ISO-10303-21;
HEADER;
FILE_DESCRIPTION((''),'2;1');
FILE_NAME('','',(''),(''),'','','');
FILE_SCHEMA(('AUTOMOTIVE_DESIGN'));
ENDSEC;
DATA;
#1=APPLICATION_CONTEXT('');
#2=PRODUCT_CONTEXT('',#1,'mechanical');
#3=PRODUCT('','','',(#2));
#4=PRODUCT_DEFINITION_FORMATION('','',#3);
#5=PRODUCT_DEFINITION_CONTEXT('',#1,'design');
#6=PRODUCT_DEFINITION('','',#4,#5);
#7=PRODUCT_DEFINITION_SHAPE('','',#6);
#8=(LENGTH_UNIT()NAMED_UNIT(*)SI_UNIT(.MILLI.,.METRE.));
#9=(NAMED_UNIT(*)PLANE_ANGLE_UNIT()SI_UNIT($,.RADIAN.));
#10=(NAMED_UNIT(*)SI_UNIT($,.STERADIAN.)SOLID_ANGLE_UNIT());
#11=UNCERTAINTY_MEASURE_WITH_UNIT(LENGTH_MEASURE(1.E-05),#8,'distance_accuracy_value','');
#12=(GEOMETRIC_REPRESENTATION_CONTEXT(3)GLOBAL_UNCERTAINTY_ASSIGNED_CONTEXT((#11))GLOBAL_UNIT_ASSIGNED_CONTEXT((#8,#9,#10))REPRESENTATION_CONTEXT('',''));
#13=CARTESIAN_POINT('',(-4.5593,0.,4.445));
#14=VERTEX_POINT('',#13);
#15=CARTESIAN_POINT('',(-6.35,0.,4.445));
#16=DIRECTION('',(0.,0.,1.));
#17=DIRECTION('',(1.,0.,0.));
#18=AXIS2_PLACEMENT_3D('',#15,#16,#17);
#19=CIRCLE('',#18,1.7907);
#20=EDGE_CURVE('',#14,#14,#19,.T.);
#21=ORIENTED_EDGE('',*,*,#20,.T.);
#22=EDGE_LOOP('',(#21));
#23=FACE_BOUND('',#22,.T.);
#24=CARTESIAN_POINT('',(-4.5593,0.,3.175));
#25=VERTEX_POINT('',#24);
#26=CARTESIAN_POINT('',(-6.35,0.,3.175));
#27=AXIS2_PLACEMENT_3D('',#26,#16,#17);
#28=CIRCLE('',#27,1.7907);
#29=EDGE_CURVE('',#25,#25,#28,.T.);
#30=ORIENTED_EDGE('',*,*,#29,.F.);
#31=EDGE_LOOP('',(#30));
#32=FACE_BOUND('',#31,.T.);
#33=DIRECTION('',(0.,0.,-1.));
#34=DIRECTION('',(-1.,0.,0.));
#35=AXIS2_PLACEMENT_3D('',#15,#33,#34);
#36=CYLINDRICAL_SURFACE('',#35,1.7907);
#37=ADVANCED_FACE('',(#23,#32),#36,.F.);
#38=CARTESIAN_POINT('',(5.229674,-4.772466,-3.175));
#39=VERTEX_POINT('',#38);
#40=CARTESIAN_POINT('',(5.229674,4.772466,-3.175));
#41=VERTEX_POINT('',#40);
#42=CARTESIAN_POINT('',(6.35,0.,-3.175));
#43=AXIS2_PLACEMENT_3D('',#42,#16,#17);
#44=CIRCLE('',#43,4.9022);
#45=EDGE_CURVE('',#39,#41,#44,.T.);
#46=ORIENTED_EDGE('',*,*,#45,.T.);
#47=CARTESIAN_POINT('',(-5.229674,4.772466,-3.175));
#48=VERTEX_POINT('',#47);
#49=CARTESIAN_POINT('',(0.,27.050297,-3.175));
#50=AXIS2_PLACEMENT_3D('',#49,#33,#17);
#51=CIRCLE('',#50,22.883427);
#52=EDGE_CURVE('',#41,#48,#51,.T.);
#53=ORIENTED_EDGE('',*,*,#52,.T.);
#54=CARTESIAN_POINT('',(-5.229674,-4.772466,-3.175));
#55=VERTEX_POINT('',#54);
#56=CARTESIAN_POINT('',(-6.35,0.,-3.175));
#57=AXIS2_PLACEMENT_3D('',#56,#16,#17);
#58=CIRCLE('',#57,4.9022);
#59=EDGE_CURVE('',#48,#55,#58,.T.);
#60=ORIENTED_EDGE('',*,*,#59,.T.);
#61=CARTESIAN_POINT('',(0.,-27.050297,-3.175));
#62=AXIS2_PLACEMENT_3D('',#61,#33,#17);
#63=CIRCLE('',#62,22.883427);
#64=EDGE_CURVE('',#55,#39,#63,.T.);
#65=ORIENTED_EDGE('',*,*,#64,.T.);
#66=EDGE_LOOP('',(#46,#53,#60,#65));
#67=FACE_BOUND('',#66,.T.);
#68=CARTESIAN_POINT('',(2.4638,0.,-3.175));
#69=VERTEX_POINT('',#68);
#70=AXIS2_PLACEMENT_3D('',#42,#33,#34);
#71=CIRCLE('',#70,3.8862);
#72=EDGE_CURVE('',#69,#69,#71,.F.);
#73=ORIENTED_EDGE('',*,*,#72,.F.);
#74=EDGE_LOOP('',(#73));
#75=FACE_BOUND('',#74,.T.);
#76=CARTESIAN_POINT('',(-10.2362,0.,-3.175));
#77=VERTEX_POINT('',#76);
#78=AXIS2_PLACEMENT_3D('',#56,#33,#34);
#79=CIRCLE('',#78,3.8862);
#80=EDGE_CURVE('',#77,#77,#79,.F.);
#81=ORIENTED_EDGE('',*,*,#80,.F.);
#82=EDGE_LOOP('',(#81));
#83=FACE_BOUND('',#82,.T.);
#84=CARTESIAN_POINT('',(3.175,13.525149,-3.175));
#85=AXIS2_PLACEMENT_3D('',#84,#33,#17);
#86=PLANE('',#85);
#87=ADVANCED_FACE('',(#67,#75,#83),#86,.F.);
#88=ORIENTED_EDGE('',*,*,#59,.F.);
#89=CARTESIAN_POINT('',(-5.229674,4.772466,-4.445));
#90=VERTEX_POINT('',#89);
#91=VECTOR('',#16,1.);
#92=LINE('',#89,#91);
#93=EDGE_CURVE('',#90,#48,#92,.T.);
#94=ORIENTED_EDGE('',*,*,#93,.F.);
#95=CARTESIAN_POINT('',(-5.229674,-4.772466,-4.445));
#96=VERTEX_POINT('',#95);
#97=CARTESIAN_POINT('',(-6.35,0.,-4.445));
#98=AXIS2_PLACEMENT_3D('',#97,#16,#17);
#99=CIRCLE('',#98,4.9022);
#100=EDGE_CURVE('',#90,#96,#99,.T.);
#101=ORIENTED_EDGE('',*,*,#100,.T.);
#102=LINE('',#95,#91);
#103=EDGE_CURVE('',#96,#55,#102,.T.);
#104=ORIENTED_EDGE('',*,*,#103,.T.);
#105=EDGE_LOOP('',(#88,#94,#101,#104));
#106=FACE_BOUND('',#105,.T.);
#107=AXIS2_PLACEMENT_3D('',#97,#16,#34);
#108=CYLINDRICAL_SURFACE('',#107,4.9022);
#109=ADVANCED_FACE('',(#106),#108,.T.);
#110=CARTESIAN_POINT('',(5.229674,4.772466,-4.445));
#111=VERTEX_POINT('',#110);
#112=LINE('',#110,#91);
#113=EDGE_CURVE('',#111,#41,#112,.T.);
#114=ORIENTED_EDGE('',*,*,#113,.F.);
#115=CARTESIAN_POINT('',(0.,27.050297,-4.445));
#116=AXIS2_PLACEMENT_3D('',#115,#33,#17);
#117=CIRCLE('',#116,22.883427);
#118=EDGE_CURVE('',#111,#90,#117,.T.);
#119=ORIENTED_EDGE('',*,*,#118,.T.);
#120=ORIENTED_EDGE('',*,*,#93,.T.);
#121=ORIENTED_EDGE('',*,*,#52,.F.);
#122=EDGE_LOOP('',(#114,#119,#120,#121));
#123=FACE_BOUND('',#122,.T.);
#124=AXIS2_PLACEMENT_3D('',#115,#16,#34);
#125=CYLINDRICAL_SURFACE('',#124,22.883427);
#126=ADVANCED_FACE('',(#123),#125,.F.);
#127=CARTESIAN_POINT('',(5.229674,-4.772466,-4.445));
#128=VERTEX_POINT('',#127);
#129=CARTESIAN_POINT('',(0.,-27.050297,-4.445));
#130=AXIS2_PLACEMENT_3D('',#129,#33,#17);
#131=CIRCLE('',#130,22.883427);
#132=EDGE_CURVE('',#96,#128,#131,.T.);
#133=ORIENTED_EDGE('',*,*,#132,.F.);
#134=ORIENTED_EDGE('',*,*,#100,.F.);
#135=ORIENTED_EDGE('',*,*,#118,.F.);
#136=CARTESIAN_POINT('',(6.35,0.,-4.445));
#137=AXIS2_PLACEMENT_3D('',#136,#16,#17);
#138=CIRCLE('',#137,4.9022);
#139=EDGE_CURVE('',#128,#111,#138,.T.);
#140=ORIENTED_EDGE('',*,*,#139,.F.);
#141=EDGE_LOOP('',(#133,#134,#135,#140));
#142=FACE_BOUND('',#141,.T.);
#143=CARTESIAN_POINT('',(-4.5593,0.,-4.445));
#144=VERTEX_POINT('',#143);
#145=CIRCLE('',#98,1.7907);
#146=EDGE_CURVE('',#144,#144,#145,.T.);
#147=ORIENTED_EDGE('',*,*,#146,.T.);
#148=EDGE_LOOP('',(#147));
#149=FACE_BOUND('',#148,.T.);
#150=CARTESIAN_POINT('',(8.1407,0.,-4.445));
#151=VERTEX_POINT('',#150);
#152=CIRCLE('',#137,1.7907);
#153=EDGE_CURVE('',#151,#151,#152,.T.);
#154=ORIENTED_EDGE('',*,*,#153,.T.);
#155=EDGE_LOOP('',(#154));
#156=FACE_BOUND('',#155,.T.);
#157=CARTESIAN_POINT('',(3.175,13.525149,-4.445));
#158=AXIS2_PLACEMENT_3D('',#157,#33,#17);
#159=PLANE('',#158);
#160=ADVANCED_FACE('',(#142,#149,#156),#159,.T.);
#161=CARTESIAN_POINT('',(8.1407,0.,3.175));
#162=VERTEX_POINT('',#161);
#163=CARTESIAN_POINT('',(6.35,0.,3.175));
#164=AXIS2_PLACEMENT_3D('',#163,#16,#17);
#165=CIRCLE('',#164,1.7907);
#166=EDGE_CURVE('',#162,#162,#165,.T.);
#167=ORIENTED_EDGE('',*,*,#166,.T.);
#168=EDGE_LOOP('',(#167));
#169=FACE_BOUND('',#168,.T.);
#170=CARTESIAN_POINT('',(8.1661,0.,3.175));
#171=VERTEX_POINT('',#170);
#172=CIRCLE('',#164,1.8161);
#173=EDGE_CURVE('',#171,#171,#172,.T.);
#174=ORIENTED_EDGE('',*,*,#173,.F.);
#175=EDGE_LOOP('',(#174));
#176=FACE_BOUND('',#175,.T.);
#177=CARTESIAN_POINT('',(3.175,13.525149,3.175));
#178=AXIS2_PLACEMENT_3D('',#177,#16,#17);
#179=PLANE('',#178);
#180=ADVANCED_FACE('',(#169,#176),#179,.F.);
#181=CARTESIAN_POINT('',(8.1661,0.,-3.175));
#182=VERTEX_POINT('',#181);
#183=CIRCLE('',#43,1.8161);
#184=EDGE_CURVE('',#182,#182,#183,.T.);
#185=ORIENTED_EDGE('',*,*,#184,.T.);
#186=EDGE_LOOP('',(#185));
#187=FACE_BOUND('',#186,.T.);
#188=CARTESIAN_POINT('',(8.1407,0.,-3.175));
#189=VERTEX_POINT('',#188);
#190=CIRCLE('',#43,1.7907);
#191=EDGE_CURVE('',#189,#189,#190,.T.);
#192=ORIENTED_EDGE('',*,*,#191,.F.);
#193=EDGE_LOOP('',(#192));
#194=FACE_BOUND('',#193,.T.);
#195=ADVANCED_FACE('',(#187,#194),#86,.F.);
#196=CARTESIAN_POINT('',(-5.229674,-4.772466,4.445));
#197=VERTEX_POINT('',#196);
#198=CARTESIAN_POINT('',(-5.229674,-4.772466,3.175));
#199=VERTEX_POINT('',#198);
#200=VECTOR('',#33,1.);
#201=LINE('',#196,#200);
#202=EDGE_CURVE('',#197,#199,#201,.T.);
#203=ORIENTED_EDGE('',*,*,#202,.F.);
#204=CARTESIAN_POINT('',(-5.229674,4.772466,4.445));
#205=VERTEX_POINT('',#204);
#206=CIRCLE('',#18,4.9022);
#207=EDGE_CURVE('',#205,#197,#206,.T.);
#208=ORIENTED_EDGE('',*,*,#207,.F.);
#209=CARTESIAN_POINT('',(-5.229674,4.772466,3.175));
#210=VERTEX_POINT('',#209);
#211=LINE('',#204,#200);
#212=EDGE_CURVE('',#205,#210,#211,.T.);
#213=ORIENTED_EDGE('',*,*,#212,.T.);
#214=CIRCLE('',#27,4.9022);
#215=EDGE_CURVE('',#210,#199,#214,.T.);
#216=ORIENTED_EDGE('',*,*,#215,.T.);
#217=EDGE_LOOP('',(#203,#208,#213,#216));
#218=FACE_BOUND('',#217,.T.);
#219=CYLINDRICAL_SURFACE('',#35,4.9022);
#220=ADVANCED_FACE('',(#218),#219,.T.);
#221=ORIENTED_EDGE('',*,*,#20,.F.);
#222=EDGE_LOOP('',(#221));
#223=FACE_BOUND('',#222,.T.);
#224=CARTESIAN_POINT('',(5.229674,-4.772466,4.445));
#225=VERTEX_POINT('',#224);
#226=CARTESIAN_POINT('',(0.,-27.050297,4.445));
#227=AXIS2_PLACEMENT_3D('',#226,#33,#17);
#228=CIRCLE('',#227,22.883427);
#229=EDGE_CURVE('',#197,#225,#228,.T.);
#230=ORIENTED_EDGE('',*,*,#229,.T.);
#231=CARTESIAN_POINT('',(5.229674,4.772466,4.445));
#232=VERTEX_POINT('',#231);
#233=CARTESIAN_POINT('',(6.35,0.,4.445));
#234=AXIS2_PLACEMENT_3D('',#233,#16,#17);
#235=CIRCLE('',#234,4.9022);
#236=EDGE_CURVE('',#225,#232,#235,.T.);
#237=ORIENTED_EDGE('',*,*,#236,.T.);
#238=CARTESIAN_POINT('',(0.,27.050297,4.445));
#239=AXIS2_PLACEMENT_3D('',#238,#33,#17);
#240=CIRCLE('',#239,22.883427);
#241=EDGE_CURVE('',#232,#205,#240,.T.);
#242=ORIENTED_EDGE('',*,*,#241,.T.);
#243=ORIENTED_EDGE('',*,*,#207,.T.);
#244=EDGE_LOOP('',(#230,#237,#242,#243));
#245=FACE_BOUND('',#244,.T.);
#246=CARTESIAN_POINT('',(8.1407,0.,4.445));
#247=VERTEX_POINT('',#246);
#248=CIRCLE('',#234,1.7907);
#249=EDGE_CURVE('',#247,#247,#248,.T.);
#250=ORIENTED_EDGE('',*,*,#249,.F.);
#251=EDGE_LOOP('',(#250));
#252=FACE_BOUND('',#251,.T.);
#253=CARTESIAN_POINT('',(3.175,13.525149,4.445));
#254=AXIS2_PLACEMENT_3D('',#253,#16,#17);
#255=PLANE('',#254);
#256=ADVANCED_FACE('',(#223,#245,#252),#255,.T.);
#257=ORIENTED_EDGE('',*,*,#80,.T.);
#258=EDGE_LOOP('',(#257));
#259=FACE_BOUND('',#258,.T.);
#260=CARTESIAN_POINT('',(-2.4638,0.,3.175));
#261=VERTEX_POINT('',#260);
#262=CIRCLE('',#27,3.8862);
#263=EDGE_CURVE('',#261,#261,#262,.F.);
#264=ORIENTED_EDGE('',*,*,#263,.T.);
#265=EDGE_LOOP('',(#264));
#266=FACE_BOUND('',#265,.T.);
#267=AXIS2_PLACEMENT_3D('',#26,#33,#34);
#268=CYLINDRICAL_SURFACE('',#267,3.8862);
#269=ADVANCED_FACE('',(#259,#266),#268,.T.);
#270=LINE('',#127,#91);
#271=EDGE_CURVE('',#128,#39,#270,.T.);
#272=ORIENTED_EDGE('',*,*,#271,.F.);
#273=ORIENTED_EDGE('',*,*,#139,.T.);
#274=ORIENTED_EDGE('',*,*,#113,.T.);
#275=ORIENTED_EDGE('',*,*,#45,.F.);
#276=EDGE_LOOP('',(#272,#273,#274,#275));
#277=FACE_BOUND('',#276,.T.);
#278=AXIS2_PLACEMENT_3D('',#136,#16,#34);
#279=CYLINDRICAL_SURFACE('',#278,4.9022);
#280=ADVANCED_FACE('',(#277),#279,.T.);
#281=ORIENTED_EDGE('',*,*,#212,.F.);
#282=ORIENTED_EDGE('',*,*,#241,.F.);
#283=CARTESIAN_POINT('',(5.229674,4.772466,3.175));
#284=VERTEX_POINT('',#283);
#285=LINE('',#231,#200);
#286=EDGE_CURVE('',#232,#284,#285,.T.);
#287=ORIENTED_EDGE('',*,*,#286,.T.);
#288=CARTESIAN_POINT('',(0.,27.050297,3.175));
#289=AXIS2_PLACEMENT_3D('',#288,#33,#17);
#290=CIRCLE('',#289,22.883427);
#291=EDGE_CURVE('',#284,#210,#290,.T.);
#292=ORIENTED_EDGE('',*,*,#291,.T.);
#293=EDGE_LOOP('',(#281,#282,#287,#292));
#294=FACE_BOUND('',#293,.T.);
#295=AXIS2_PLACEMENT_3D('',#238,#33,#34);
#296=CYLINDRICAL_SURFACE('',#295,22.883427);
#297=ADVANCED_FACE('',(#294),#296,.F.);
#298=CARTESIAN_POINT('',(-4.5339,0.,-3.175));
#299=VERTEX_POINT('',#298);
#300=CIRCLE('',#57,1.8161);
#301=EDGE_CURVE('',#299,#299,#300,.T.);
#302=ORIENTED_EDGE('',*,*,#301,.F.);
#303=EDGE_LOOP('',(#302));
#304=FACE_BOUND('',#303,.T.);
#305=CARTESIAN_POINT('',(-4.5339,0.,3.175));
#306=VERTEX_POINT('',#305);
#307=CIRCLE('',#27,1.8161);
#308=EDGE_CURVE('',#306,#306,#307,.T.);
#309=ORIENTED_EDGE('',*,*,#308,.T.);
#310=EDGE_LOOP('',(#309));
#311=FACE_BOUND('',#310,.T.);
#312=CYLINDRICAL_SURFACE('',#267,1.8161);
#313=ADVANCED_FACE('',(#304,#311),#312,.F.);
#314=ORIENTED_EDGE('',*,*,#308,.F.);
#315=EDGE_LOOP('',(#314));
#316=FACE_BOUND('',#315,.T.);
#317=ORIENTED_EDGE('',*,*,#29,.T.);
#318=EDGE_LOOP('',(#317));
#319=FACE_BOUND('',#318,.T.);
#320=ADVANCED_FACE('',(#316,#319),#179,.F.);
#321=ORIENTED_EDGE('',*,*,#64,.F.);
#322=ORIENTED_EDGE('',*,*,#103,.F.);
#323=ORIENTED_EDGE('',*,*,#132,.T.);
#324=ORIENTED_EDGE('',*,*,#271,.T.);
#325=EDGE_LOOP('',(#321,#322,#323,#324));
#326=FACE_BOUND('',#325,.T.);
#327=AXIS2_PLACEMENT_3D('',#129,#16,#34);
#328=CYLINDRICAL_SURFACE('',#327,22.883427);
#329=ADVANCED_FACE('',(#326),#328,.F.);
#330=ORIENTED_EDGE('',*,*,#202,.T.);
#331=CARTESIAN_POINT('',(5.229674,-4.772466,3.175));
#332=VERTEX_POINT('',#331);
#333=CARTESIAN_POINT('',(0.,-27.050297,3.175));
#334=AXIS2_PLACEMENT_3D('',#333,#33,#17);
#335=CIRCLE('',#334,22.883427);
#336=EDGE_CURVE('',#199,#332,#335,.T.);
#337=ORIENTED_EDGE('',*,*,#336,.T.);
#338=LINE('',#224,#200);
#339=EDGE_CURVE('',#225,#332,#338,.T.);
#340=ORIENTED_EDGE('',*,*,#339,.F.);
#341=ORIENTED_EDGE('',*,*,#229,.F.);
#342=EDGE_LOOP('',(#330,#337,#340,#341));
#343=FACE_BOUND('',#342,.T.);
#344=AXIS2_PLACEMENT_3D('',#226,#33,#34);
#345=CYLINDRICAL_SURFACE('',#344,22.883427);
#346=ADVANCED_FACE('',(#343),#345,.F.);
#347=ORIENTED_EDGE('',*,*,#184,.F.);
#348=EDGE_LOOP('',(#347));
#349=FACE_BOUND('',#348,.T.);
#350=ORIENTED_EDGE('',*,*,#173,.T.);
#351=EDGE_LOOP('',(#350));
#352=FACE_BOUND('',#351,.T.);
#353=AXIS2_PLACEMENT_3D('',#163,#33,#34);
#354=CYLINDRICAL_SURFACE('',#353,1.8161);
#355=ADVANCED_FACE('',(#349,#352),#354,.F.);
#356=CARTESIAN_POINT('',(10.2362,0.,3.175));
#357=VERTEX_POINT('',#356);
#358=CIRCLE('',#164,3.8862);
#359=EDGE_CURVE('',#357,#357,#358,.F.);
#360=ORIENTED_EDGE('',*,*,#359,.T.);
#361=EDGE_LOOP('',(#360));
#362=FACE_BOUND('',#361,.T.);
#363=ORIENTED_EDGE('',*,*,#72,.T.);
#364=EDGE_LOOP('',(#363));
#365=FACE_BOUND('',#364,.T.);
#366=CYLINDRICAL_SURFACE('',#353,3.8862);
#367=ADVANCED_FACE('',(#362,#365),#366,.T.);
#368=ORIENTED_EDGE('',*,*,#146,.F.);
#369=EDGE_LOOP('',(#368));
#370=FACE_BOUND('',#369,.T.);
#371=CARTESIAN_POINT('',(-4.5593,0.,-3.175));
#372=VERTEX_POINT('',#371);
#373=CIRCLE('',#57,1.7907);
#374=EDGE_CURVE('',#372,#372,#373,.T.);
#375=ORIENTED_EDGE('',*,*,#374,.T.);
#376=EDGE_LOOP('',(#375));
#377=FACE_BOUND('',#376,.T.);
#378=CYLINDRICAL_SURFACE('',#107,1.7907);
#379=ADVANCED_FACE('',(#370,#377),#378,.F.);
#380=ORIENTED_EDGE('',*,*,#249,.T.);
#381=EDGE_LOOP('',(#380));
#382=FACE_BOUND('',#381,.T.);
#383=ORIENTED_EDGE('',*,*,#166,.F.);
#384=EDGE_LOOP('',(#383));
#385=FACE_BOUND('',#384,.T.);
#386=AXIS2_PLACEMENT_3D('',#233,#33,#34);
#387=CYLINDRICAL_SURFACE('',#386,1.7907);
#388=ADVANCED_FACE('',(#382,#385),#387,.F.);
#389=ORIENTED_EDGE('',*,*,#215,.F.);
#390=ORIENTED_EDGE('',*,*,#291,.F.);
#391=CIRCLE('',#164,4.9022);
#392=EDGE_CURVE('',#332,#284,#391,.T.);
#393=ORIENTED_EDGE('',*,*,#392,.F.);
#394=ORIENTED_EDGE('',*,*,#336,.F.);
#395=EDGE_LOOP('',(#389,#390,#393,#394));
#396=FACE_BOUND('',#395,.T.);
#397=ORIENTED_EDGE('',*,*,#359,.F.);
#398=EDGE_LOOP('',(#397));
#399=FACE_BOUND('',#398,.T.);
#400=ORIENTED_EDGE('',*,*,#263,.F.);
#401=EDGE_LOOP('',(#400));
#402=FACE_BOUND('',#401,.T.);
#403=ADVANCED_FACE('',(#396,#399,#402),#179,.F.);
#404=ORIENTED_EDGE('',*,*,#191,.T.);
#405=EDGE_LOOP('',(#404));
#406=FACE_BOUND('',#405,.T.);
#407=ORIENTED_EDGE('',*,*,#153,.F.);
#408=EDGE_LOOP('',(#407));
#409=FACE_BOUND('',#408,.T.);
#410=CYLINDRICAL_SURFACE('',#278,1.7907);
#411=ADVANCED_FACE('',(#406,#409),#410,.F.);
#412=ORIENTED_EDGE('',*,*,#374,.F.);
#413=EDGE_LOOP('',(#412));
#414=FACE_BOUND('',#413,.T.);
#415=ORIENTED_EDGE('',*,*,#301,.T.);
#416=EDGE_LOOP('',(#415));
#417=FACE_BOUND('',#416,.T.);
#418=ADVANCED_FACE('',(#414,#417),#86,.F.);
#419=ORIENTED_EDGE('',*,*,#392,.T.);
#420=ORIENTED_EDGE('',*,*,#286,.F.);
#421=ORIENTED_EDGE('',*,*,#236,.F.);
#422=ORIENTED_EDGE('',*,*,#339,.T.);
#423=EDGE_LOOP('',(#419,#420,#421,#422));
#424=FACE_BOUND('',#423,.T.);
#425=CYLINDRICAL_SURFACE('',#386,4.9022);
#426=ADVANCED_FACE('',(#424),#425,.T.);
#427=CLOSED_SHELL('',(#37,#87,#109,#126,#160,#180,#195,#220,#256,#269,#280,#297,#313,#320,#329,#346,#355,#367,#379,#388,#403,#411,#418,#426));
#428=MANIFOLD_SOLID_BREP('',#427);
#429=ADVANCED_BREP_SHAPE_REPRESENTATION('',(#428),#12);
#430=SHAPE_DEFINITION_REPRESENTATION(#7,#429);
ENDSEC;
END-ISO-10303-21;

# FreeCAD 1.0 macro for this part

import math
import FreeCAD as App
import Part
import Sketcher

V = App.Vector
Q = App.Units.Quantity

doc = App.newDocument("Part")
body = doc.addObject("PartDesign::Body", "Body")

# Sketch on XY plane
sketch1 = doc.addObject("Sketcher::SketchObject", "Sketch")
body.addObject(sketch1)
sketch1.AttachmentSupport = (doc.XY_Plane, [""])
sketch1.MapMode = "FlatFace"
sketch1.addGeometry([
    Part.Circle(V(-6.35, 0, 0), V(0, 0, 1), 3.8862),
    Part.Circle(V(-6.35, 0, 0), V(0, 0, 1), 1.8161),
], False)
sketch1.addConstraint([
    Sketcher.Constraint("Coincident", 1, 3, 0, 3),
    Sketcher.Constraint("PointOnObject", 0, 3, -1),
    Sketcher.Constraint("Diameter", 0, Q("0.306 in")),
    Sketcher.Constraint("Diameter", 1, Q("0.143 in")),
    Sketcher.Constraint("DistanceX", 0, 3, -1, 1, Q("0.25 in")),
])
pad1 = doc.addObject("PartDesign::Pad", "Pad")
body.addObject(pad1)
pad1.Profile = sketch1
pad1.Length = Q("0.25 in")
pad1.Midplane = True
body2 = doc.addObject("PartDesign::Body", "Body001")

# Sketch on XY plane
sketch2 = doc.addObject("Sketcher::SketchObject", "Sketch001")
body2.addObject(sketch2)
sketch2.AttachmentSupport = (doc.getObject("XY_Plane001"), [""])
sketch2.MapMode = "FlatFace"
sketch2.addGeometry([
    Part.Circle(V(6.35, 0, 0), V(0, 0, 1), 3.8862),
    Part.Circle(V(6.35, 0, 0), V(0, 0, 1), 1.8161),
], False)
sketch2.addConstraint([
    Sketcher.Constraint("Coincident", 1, 3, 0, 3),
    Sketcher.Constraint("PointOnObject", 0, 3, -1),
    Sketcher.Constraint("Diameter", 0, Q("0.306 in")),
    Sketcher.Constraint("Diameter", 1, Q("0.143 in")),
    Sketcher.Constraint("DistanceX", -1, 1, 0, 3, Q("0.25 in")),
])
pad2 = doc.addObject("PartDesign::Pad", "Pad001")
body2.addObject(pad2)
pad2.Profile = sketch2
pad2.Length = Q("0.25 in")
pad2.Midplane = True
body3 = doc.addObject("PartDesign::Body", "Body002")

# Sketch on XY plane
sketch3 = doc.addObject("Sketcher::SketchObject", "Sketch002")
body3.addObject(sketch3)
sketch3.AttachmentSupport = (doc.getObject("XY_Plane002"), [""])
sketch3.MapMode = "FlatFace"
sketch3.AttachmentOffset = App.Placement(V(0, 0, 0.125 * 25.4), App.Rotation())
sketch3.addGeometry([
    Part.ArcOfCircle(Part.Circle(V(-6.35, 0, 0), V(0, 0, 1), 4.9022), math.radians(76.789139), math.radians(283.210861)),  # 0
    Part.ArcOfCircle(Part.Circle(V(0, -27.050297, 0), V(0, 0, 1), 22.883427), math.radians(76.789139), math.radians(103.210861)),  # 1
    Part.ArcOfCircle(Part.Circle(V(6.35, 0, 0), V(0, 0, 1), 4.9022), math.radians(-103.210861), math.radians(103.210861)),  # 2
    Part.ArcOfCircle(Part.Circle(V(0, 27.050297, 0), V(0, 0, 1), 22.883427), math.radians(-103.210861), math.radians(-76.789139)),  # 3
    Part.Circle(V(-6.35, 0, 0), V(0, 0, 1), 1.7907),  # 4
    Part.Circle(V(6.35, 0, 0), V(0, 0, 1), 1.7907),  # 5
], False)
sketch3.addConstraint([
    Sketcher.Constraint("Tangent", 0, 2, 1, 2),
    Sketcher.Constraint("Tangent", 1, 1, 2, 1),
    Sketcher.Constraint("Tangent", 2, 2, 3, 2),
    Sketcher.Constraint("Tangent", 3, 1, 0, 1),
    Sketcher.Constraint("Coincident", 4, 3, 0, 3),
    Sketcher.Constraint("Coincident", 5, 3, 2, 3),
    Sketcher.Constraint("Equal", 0, 2),
    Sketcher.Constraint("Equal", 1, 3),
    Sketcher.Constraint("Equal", 4, 5),
    Sketcher.Constraint("Symmetric", 0, 3, 2, 3, -1, 1),
    Sketcher.Constraint("PointOnObject", 0, 3, -1),
    Sketcher.Constraint("Diameter", 4, Q("0.141 in")),
    Sketcher.Constraint("Radius", 0, Q("0.193 in")),
    Sketcher.Constraint("DistanceX", 0, 3, 2, 3, Q("0.5 in")),
    Sketcher.Constraint("Radius", 1, 22.883427),
])
pad3 = doc.addObject("PartDesign::Pad", "Pad002")
body3.addObject(pad3)
pad3.Profile = sketch3
pad3.Length = Q("0.05 in")
body4 = doc.addObject("PartDesign::Body", "Body003")
body4.AllowCompound = True
doc.recompute()

mirroring = doc.addObject("Part::Mirroring", "Mirroring")
mirroring.Source = body3
mirroring.Base = V(0, 0, 0)
mirroring.Normal = V(0, 0, 1)
body4.BaseFeature = mirroring
doc.recompute()

boolean = doc.addObject("PartDesign::Boolean", "Boolean")
body4.addObject(boolean)
boolean.Type = "Fuse"
boolean.addObjects([body3])
doc.recompute()

boolean2 = doc.addObject("PartDesign::Boolean", "Boolean001")
body4.addObject(boolean2)
boolean2.Type = "Fuse"
boolean2.addObjects([body2])
doc.recompute()

boolean3 = doc.addObject("PartDesign::Boolean", "Boolean002")
body4.addObject(boolean3)
boolean3.Type = "Fuse"
boolean3.addObjects([body])
mirroring.Visibility = False

doc.recompute()
